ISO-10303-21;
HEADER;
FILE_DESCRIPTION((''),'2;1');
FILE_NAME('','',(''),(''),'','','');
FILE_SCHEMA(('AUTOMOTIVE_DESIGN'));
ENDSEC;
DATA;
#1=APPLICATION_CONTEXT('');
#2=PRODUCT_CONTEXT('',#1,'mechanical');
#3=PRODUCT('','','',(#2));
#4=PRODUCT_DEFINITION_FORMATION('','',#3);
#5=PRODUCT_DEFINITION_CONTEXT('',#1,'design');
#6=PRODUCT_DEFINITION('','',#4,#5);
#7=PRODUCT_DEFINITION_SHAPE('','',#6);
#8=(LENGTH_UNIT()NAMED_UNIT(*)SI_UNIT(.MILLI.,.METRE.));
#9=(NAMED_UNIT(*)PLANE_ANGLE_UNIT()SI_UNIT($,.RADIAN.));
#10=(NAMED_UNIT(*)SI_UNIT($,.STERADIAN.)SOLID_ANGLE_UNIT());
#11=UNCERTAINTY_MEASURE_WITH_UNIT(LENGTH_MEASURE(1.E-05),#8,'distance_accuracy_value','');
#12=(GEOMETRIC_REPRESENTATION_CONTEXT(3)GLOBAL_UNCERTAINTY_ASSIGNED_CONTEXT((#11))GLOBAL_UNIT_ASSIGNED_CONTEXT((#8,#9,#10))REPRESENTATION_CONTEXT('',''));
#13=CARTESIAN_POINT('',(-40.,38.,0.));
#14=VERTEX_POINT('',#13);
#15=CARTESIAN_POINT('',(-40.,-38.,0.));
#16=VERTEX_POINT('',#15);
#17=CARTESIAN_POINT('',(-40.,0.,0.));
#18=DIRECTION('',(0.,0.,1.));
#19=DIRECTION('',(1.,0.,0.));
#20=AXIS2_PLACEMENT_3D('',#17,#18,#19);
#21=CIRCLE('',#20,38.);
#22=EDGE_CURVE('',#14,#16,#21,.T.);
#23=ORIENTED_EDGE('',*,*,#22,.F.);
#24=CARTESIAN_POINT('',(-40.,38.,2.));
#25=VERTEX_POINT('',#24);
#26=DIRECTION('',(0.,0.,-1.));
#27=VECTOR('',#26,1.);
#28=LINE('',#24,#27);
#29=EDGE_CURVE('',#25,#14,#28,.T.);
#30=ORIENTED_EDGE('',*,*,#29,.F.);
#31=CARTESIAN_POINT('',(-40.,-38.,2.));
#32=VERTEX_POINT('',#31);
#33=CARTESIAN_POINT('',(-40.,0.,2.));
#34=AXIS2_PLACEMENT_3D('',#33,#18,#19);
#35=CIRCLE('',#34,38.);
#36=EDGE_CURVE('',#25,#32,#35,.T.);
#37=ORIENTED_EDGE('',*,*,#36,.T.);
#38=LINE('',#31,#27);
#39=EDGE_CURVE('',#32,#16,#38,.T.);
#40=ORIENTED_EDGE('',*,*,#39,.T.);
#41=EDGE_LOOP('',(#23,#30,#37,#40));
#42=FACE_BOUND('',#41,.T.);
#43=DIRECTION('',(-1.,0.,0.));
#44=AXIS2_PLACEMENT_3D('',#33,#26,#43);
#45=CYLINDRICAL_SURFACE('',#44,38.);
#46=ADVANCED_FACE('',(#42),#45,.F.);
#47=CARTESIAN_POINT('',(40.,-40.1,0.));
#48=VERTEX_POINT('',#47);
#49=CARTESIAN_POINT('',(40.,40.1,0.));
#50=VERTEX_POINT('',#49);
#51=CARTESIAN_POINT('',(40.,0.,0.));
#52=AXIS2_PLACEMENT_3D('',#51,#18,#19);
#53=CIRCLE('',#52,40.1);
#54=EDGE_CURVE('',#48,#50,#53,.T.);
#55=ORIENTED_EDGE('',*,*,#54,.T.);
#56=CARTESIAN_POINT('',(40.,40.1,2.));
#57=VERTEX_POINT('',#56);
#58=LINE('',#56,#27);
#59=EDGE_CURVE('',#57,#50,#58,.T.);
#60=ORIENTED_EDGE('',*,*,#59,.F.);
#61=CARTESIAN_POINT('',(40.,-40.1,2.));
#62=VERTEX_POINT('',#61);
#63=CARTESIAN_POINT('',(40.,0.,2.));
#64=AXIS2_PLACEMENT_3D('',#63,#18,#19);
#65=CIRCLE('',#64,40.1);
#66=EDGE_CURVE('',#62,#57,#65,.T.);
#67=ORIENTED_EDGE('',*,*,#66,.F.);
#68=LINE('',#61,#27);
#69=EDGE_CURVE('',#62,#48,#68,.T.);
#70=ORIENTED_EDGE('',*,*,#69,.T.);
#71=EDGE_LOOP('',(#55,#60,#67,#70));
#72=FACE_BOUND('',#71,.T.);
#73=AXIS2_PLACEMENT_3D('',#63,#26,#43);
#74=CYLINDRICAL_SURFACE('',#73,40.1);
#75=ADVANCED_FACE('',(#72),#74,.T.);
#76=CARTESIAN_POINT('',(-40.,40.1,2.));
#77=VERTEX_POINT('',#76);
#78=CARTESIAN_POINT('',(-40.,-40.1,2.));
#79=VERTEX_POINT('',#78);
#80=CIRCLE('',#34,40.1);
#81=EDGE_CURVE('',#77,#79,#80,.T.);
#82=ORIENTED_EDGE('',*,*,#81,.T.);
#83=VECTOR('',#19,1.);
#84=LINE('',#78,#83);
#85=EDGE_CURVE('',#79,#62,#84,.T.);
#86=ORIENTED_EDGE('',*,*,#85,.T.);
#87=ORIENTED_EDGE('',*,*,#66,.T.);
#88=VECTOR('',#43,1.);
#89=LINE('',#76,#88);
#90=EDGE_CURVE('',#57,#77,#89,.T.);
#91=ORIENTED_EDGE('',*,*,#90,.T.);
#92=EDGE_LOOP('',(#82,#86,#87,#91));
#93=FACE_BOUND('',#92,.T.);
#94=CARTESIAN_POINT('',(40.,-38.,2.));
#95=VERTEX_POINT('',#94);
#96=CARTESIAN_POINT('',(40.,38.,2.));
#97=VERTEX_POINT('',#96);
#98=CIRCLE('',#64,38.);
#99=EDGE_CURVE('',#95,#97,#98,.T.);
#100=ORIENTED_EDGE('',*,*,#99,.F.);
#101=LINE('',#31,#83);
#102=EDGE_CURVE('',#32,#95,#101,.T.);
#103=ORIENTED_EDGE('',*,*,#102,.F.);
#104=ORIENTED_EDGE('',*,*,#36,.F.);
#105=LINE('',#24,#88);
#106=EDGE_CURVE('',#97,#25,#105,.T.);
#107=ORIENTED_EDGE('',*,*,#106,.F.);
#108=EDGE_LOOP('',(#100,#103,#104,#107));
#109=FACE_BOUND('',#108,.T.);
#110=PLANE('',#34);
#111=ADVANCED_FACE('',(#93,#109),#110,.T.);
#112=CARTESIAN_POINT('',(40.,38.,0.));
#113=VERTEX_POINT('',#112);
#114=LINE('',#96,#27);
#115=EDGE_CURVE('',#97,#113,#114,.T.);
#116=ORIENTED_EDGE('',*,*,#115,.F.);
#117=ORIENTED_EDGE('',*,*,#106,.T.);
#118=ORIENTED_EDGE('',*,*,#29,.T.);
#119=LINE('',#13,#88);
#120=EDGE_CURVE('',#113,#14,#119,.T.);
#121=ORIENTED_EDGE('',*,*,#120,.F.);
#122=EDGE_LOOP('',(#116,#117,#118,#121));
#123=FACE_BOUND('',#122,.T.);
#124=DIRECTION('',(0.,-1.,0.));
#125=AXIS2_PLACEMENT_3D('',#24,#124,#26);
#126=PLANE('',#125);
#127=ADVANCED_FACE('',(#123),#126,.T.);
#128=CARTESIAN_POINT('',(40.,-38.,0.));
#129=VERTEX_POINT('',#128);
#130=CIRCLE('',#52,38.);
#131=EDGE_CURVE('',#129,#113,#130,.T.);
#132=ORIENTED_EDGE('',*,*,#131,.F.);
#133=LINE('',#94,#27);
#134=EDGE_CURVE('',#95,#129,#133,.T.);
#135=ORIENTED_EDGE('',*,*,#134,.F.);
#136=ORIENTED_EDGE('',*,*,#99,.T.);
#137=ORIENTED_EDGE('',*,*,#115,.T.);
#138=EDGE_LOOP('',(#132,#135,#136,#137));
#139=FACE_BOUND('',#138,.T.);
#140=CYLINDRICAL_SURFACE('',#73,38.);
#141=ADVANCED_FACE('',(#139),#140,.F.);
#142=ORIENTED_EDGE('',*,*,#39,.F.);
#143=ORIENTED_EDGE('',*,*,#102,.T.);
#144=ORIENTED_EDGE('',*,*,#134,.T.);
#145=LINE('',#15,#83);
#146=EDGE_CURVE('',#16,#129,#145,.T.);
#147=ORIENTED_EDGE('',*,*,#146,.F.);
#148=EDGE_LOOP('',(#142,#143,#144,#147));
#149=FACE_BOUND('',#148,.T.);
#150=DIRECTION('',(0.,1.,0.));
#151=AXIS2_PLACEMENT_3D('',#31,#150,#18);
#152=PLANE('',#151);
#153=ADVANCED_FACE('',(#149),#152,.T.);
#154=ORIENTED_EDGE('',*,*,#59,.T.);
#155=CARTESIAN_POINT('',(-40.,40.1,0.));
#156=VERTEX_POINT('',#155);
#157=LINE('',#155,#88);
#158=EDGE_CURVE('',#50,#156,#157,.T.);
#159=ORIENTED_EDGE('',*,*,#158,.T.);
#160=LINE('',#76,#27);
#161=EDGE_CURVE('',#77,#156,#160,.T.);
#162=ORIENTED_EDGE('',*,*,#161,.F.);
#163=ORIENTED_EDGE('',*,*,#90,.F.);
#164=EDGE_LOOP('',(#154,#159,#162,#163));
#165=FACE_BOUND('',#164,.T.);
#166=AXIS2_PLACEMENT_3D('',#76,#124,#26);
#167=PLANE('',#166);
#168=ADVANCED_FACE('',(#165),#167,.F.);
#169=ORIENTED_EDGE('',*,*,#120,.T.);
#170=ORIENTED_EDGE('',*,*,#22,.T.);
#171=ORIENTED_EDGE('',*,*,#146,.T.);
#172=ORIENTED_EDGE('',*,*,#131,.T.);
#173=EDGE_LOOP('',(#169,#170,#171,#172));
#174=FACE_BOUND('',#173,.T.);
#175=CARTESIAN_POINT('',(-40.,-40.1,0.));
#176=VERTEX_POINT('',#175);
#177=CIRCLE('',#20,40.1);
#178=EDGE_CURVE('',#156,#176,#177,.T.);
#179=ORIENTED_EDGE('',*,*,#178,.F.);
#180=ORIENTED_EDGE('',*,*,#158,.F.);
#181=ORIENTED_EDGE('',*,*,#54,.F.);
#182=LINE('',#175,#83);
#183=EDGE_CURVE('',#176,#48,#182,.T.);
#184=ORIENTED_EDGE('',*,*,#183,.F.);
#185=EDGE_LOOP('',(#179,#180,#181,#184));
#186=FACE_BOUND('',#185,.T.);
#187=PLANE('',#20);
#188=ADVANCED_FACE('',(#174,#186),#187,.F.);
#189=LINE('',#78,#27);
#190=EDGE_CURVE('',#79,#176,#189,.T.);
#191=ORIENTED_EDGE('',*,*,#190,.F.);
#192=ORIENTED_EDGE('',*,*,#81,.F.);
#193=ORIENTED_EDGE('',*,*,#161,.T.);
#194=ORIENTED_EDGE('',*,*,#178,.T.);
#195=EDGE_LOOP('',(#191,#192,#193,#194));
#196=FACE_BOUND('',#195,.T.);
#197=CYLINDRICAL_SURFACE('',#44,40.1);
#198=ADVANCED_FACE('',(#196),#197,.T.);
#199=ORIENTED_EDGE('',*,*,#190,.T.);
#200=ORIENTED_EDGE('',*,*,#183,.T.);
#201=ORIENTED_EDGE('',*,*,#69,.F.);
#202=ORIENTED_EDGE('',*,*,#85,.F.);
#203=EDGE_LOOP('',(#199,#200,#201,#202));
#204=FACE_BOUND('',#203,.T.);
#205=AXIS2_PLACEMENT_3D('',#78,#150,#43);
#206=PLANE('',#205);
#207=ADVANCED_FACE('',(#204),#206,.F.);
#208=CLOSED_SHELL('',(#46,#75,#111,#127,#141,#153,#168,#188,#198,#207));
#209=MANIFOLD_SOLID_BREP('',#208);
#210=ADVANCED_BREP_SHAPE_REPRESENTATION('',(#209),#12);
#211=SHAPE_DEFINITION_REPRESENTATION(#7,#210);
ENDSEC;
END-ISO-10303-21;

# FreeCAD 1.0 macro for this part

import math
import FreeCAD as App
import Part
import Sketcher
from FreeCAD import Vector

doc = App.newDocument("Part")
params = doc.addObject("Spreadsheet::Sheet", "Params")
for row, (alias, value) in enumerate([
    ("sketch1_radius", "38 mm"),
    ("sketch1_radius2", "40.1 mm"),
    ("sketch1_width", "80 mm"),
    ("pad1_length", "2 mm"),
], start=1):
    params.set(f"A{row}", alias)
    params.set(f"B{row}", "=" + value)
    params.setAlias(f"B{row}", alias)

body = doc.addObject("PartDesign::Body", "Body")

# Sketch on XY plane
sketch1 = doc.addObject("Sketcher::SketchObject", "Sketch")
body.addObject(sketch1)
sketch1.AttachmentSupport = (doc.XY_Plane, [""])
sketch1.MapMode = "FlatFace"
sketch1.addGeometry(Part.LineSegment(Vector(-40, -40, 0), Vector(40, -40, 0)), False)
sketch1.addGeometry(Part.ArcOfCircle(Part.Circle(Vector(40, 0, 0), Vector(0, 0, 1), 40), math.radians(-90), math.radians(90)), False)
sketch1.addGeometry(Part.LineSegment(Vector(40, 40, 0), Vector(-40, 40, 0)), False)
sketch1.addGeometry(Part.ArcOfCircle(Part.Circle(Vector(-40, 0, 0), Vector(0, 0, 1), 40), math.radians(90), math.radians(270)), False)
sketch1.addGeometry(Part.ArcOfCircle(Part.Circle(Vector(-40, 0, 0), Vector(0, 0, 1), 38), math.radians(90), math.radians(270)), False)
sketch1.addGeometry(Part.LineSegment(Vector(-40, 38, 0), Vector(40, 38, 0)), False)
sketch1.addGeometry(Part.ArcOfCircle(Part.Circle(Vector(40, 0, 0), Vector(0, 0, 1), 38), math.radians(-90), math.radians(90)), False)
sketch1.addGeometry(Part.LineSegment(Vector(40, -38, 0), Vector(-40, -38, 0)), False)
sketch1.addConstraint(Sketcher.Constraint("Tangent", 0, 2, 1, 1))
sketch1.addConstraint(Sketcher.Constraint("Tangent", 1, 2, 2, 1))
sketch1.addConstraint(Sketcher.Constraint("Tangent", 2, 2, 3, 1))
sketch1.addConstraint(Sketcher.Constraint("Tangent", 3, 2, 0, 1))
sketch1.addConstraint(Sketcher.Constraint("Tangent", 4, 1, 5, 1))
sketch1.addConstraint(Sketcher.Constraint("Tangent", 5, 2, 6, 2))
sketch1.addConstraint(Sketcher.Constraint("Tangent", 6, 1, 7, 1))
sketch1.addConstraint(Sketcher.Constraint("Tangent", 7, 2, 4, 2))
sketch1.addConstraint(Sketcher.Constraint("Horizontal", 0))
sketch1.addConstraint(Sketcher.Constraint("Horizontal", 2))
sketch1.addConstraint(Sketcher.Constraint("Horizontal", 5))
sketch1.addConstraint(Sketcher.Constraint("Horizontal", 7))
sketch1.addConstraint(Sketcher.Constraint("Coincident", 4, 3, 3, 3))
sketch1.addConstraint(Sketcher.Constraint("Symmetric", 1, 3, 3, 3, -1, 1))
sketch1.addConstraint(Sketcher.Constraint("Vertical", 6, 3, 0, 2))
sketch1.addConstraint(Sketcher.Constraint("Radius", 4, 38.0))
sketch1.addConstraint(Sketcher.Constraint("Radius", 1, 40.1))
sketch1.addConstraint(Sketcher.Constraint("DistanceX", 0, 1, 0, 2, 80.0))
sketch1.setExpression("Constraints[15]", "Params.sketch1_radius")
sketch1.setExpression("Constraints[16]", "Params.sketch1_radius2")
sketch1.setExpression("Constraints[17]", "Params.sketch1_width")
pad1 = doc.addObject("PartDesign::Pad", "Pad")
body.addObject(pad1)
pad1.Profile = sketch1
pad1.setExpression("Length", "Params.pad1_length")

doc.recompute()
